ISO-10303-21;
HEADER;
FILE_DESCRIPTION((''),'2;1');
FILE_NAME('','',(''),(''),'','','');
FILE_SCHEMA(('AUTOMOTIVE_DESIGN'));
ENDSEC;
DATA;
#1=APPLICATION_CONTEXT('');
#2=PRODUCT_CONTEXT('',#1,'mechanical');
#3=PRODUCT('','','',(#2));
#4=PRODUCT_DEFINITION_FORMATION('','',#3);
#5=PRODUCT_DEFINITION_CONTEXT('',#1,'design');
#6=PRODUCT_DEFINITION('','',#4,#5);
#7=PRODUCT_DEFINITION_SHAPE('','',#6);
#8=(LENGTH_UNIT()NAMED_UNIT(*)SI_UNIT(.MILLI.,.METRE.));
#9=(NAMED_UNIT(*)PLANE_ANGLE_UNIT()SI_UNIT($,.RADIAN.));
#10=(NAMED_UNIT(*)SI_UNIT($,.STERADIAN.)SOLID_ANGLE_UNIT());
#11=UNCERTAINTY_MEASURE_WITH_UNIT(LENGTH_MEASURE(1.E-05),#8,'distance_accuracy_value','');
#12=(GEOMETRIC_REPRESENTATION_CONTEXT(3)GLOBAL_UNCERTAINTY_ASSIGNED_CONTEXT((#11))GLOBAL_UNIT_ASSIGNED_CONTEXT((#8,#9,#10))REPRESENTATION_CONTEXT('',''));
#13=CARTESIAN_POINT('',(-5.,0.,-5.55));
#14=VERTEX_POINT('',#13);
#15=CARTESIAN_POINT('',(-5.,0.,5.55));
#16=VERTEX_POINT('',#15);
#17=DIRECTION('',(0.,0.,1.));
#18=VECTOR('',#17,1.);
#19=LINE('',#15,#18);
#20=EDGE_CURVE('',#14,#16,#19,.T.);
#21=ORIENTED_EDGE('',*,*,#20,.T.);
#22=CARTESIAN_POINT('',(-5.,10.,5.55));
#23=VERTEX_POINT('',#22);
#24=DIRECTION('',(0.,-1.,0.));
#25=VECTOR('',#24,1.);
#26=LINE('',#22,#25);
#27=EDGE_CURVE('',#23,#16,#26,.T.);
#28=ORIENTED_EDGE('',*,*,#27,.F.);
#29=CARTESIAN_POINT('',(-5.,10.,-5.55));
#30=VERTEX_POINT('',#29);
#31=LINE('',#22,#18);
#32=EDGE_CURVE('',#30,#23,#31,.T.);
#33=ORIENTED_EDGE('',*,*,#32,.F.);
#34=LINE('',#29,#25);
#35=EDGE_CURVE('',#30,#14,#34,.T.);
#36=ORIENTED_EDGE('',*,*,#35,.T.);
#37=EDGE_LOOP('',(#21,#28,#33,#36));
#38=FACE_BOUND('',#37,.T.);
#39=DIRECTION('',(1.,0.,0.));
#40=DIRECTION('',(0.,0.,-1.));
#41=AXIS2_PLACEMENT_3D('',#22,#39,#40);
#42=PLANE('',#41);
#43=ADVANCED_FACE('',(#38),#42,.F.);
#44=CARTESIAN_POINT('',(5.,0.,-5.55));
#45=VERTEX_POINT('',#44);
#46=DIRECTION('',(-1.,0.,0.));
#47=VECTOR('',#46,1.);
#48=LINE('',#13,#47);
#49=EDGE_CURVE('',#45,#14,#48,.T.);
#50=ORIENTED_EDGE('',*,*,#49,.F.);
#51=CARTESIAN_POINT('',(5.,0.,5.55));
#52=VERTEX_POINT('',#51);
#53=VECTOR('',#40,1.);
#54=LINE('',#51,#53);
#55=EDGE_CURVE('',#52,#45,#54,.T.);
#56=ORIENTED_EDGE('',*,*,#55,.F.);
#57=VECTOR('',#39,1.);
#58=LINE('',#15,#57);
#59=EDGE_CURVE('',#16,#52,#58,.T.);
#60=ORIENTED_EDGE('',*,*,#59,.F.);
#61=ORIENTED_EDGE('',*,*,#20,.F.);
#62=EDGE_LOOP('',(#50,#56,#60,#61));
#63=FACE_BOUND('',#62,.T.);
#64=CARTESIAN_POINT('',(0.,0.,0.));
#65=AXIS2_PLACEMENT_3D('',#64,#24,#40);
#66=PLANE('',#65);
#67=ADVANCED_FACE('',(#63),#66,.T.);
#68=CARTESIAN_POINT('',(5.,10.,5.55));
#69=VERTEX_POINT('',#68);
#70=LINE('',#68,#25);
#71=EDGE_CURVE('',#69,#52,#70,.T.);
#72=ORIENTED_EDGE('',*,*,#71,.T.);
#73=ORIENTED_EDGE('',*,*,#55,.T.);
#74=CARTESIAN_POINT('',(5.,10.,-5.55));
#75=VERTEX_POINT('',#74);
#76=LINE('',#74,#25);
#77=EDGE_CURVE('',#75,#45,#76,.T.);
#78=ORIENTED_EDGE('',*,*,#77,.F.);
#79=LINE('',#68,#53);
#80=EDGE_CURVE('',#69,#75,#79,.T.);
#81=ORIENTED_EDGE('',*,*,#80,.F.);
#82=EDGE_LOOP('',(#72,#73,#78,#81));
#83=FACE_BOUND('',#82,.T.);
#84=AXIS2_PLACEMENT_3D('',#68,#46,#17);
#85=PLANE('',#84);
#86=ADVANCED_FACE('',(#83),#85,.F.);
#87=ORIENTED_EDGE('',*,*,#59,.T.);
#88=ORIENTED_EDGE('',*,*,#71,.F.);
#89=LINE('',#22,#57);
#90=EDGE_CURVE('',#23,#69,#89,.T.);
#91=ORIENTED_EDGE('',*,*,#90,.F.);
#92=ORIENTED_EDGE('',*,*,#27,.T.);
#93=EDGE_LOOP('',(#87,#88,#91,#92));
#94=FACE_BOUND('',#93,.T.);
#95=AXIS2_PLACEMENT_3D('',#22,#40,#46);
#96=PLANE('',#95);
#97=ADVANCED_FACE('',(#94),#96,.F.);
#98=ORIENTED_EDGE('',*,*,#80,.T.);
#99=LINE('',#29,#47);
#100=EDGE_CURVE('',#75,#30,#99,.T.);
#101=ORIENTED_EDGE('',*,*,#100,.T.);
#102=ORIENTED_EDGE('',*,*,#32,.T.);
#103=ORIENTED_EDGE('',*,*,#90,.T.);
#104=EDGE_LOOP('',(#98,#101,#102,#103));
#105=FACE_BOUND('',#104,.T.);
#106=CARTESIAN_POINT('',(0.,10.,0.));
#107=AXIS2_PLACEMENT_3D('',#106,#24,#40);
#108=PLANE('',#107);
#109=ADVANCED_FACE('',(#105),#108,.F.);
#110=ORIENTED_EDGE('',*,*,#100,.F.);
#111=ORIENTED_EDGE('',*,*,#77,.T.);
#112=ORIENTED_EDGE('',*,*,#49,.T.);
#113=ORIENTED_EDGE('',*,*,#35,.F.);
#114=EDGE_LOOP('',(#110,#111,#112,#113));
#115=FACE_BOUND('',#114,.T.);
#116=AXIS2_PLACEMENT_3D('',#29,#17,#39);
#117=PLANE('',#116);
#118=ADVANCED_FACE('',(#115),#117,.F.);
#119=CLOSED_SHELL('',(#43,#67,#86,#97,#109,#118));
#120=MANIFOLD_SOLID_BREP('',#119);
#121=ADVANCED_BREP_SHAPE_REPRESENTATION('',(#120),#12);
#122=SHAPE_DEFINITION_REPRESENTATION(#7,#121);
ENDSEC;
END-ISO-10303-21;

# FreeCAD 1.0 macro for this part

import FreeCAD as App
import Part
import Sketcher

V = App.Vector
Q = App.Units.Quantity


def add_polygon(sketch, points):
    """Adds a closed chain of lines whose ends are joined by coincident constraints."""
    first, n = sketch.GeometryCount, len(points)
    for a, b in zip(points, points[1:] + points[:1]):
        sketch.addGeometry(Part.LineSegment(App.Vector(*a, 0), App.Vector(*b, 0)), False)
    for i in range(n):
        sketch.addConstraint(Sketcher.Constraint("Coincident", first + i, 2, first + (i + 1) % n, 1))

doc = App.newDocument("Part")
params = doc.addObject("Spreadsheet::Sheet", "Params")
for row, (alias, value) in enumerate([
    ("sketch1_width", "10 mm"),
    ("sketch1_height", "11.1 mm"),
    ("pad1_length", "10 mm"),
], start=1):
    params.set(f"A{row}", alias)
    params.set(f"B{row}", "=" + value)
    params.setAlias(f"B{row}", alias)

body = doc.addObject("PartDesign::Body", "Body")

# Sketch on XZ plane
sketch1 = doc.addObject("Sketcher::SketchObject", "Sketch")
body.addObject(sketch1)
sketch1.AttachmentSupport = (doc.XZ_Plane, [""])
sketch1.MapMode = "FlatFace"
add_polygon(sketch1, [(-5, -5.55), (-5, 5.55), (5, 5.55), (5, -5.55)])  # lines 0-3
sketch1.addConstraint([
    Sketcher.Constraint("Vertical", 0),
    Sketcher.Constraint("Horizontal", 1),
    Sketcher.Constraint("Vertical", 2),
    Sketcher.Constraint("Horizontal", 3),
    Sketcher.Constraint("Symmetric", 0, 2, 2, 2, -1, 1),
    Sketcher.Constraint("DistanceX", 1, 1, 1, 2, Q("10 mm")),
    Sketcher.Constraint("DistanceY", 0, 1, 0, 2, Q("11.1 mm")),
])
sketch1.setExpression("Constraints[9]", "Params.sketch1_width")
sketch1.setExpression("Constraints[10]", "Params.sketch1_height")
pad1 = doc.addObject("PartDesign::Pad", "Pad")
body.addObject(pad1)
pad1.Profile = sketch1
pad1.setExpression("Length", "Params.pad1_length")
pad1.Reversed = True

doc.recompute()
